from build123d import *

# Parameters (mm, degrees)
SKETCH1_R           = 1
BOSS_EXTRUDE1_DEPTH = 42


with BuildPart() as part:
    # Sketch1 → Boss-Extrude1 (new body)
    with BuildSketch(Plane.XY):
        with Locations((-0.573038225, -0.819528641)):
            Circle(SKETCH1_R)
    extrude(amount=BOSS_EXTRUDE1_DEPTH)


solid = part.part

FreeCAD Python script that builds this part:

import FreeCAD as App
import Part
import Sketcher

V = App.Vector
Q = App.Units.Quantity

doc = App.newDocument("Part")
body = doc.addObject("PartDesign::Body", "Body")

sketch1 = body.newObject("Sketcher::SketchObject", "Sketch")
sketch1.AttachmentSupport = (doc.getObject("XY_Plane"), [""])
sketch1.MapMode = "FlatFace"
sketch1.addGeometry(Part.Circle(V(-0.6, -0.8, 0), V(0, 0, 1), 1), False)
sketch1.addConstraint([
    Sketcher.Constraint("Diameter", 0, Q("2 mm")),
    Sketcher.Constraint("DistanceX", 0, 3, -1, 1, Q("0.573038 mm")),
    Sketcher.Constraint("DistanceY", 0, 3, -1, 1, Q("0.819529 mm")),
])
pad1 = body.newObject("PartDesign::Pad", "Pad")
pad1.Profile = sketch1
pad1.Length = 42

doc.recompute()
